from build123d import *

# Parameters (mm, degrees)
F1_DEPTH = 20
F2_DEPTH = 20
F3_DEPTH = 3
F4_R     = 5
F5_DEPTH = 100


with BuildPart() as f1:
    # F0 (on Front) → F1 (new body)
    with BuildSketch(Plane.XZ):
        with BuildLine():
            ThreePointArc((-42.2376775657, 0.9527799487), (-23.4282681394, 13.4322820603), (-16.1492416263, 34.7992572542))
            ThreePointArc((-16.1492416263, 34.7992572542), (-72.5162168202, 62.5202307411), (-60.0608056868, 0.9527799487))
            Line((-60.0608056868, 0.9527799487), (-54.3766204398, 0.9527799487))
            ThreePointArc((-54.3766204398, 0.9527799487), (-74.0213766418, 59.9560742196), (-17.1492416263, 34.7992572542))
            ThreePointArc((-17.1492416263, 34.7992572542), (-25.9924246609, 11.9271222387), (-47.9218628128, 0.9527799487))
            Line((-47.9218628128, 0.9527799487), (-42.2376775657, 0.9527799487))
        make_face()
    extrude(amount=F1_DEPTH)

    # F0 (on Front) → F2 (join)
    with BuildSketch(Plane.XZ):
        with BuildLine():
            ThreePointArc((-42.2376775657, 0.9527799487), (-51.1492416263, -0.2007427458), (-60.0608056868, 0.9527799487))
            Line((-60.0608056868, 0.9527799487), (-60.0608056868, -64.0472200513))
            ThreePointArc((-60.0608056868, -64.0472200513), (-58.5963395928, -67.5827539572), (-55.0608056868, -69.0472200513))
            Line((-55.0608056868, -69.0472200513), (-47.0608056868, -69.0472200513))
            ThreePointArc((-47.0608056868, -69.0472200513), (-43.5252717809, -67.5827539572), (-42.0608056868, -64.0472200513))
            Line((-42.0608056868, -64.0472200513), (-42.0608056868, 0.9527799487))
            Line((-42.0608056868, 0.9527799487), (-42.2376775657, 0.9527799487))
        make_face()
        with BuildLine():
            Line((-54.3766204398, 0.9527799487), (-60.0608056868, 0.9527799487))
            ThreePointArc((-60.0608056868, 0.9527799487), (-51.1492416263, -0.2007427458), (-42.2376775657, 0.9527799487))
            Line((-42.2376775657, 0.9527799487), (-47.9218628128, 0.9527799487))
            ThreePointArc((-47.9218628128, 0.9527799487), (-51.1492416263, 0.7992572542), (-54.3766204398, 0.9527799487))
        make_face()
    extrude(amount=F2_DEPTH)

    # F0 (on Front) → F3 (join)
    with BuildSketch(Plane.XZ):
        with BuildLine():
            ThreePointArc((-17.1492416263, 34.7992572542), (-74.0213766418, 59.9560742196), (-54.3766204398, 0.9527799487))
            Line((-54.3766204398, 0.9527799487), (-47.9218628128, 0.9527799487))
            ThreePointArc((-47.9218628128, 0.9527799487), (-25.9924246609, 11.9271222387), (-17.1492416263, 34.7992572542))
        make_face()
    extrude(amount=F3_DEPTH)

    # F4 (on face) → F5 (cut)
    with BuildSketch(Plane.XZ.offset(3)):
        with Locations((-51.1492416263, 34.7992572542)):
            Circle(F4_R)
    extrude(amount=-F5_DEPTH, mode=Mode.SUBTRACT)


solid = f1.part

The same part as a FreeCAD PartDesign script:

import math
import FreeCAD as App
import Part
import Sketcher

V = App.Vector
Q = App.Units.Quantity

doc = App.newDocument("Part")
body = doc.addObject("PartDesign::Body", "Body")

# Sketch on XZ plane
sketch1 = body.newObject("Sketcher::SketchObject", "Sketch")
sketch1.AttachmentSupport = (doc.getObject("XZ_Plane"), [""])
sketch1.MapMode = "FlatFace"
sketch1.addGeometry([
    Part.ArcOfCircle(Part.Circle(V(-51, 35, 0), V(0, 0, 1), 35), math.radians(-75), math.radians(255)),  # 0
    Part.LineSegment(V(-60, 1, 0), V(-54, 1, 0)),  # 1
    Part.ArcOfCircle(Part.Circle(V(-51, 35, 0), V(0, 0, 1), 34), math.radians(0), math.radians(265)),  # 2
    Part.ArcOfCircle(Part.Circle(V(-51, 35, 0), V(0, 0, 1), 34), math.radians(-85), math.radians(0)),  # 3
    Part.LineSegment(V(-48, 1, 0), V(-42, 1, 0)),  # 4
], False)
sketch1.addConstraint([
    Sketcher.Constraint("Coincident", 0, 2, 1, 1),
    Sketcher.Constraint("Coincident", 1, 2, 2, 2),
    Sketcher.Constraint("Tangent", 2, 1, 3, 2),
    Sketcher.Constraint("Coincident", 3, 1, 4, 1),
    Sketcher.Constraint("Coincident", 4, 2, 0, 1),
    Sketcher.Constraint("Horizontal", 1),
    Sketcher.Constraint("Horizontal", 4),
    Sketcher.Constraint("Coincident", 2, 3, 0, 3),
    Sketcher.Constraint("Equal", 2, 3),
    Sketcher.Constraint("Horizontal", 3, 3, 2, 1),
    Sketcher.Constraint("Horizontal", 1, 2, 3, 1),
    Sketcher.Constraint("Radius", 0, Q("35 mm")),
    Sketcher.Constraint("Radius", 2, Q("34 mm")),
    Sketcher.Constraint("DistanceX", 1, 1, 1, 2, Q("5.684185 mm")),
    Sketcher.Constraint("DistanceX", 0, 3, -1, 1, Q("51.149242 mm")),
    Sketcher.Constraint("DistanceY", -1, 1, 0, 2, Q("0.95278 mm")),
])
pad1 = body.newObject("PartDesign::Pad", "Pad")
pad1.Profile = sketch1
pad1.Length = 20

# Sketch on XZ plane
sketch2 = body.newObject("Sketcher::SketchObject", "Sketch001")
sketch2.AttachmentSupport = (doc.getObject("XZ_Plane"), [""])
sketch2.MapMode = "FlatFace"
sketch2.addGeometry([
    Part.LineSegment(V(-60, 1, 0), V(-60, -64, 0)),  # 0
    Part.ArcOfCircle(Part.Circle(V(-55, -64, 0), V(0, 0, 1), 5), math.radians(180), math.radians(270)),  # 1
    Part.LineSegment(V(-55, -69, 0), V(-47, -69, 0)),  # 2
    Part.ArcOfCircle(Part.Circle(V(-47, -64, 0), V(0, 0, 1), 5), math.radians(-90), math.radians(0)),  # 3
    Part.LineSegment(V(-42, -64, 0), V(-42, 1, 0)),  # 4
    Part.LineSegment(V(-42, 1, 0), V(-48, 1, 0)),  # 5
    Part.ArcOfCircle(Part.Circle(V(-51, 35, 0), V(0, 0, 1), 34), math.radians(-95.45), math.radians(-84.55)),  # 6
    Part.LineSegment(V(-54, 1, 0), V(-60, 1, 0)),  # 7
], False)
sketch2.addConstraint([
    Sketcher.Constraint("Tangent", 0, 2, 1, 1),
    Sketcher.Constraint("Tangent", 1, 2, 2, 1),
    Sketcher.Constraint("Tangent", 2, 2, 3, 1),
    Sketcher.Constraint("Tangent", 3, 2, 4, 1),
    Sketcher.Constraint("Coincident", 4, 2, 5, 1),
    Sketcher.Constraint("Coincident", 5, 2, 6, 2),
    Sketcher.Constraint("Coincident", 6, 1, 7, 1),
    Sketcher.Constraint("Coincident", 7, 2, 0, 1),
    Sketcher.Constraint("Vertical", 0),
    Sketcher.Constraint("Horizontal", 2),
    Sketcher.Constraint("Vertical", 4),
    Sketcher.Constraint("Horizontal", 5),
    Sketcher.Constraint("Horizontal", 7),
    Sketcher.Constraint("Equal", 1, 3),
    Sketcher.Constraint("Horizontal", 5, 2, 6, 1),
    Sketcher.Constraint("Radius", 1, Q("5 mm")),
    Sketcher.Constraint("Radius", 6, Q("34 mm")),
    Sketcher.Constraint("DistanceX", 2, 1, 2, 2, Q("8 mm")),
    Sketcher.Constraint("DistanceY", 0, 2, 0, 1, Q("65 mm")),
    Sketcher.Constraint("DistanceX", 5, 2, 5, 1, Q("5.861057 mm")),
    Sketcher.Constraint("DistanceX", 7, 2, 7, 1, Q("5.684185 mm")),
    Sketcher.Constraint("DistanceY", 1, 3, -1, 1, Q("64.04722 mm")),
    Sketcher.Constraint("DistanceX", 6, 3, -1, 1, Q("51.149242 mm")),
])
pad2 = body.newObject("PartDesign::Pad", "Pad001")
pad2.Profile = sketch2
pad2.Length = 20

# Sketch on XZ plane
sketch3 = body.newObject("Sketcher::SketchObject", "Sketch002")
sketch3.AttachmentSupport = (doc.getObject("XZ_Plane"), [""])
sketch3.MapMode = "FlatFace"
sketch3.addGeometry([
    Part.ArcOfCircle(Part.Circle(V(-51, 35, 0), V(0, 0, 1), 34), math.radians(0), math.radians(265)),
    Part.LineSegment(V(-54, 1, 0), V(-48, 1, 0)),
    Part.ArcOfCircle(Part.Circle(V(-51, 35, 0), V(0, 0, 1), 34), math.radians(-85), math.radians(0)),
], False)
sketch3.addConstraint([
    Sketcher.Constraint("Coincident", 0, 2, 1, 1),
    Sketcher.Constraint("Coincident", 1, 2, 2, 1),
    Sketcher.Constraint("Tangent", 2, 2, 0, 1),
    Sketcher.Constraint("Horizontal", 1),
    Sketcher.Constraint("Equal", 0, 2),
    Sketcher.Constraint("Horizontal", 0, 3, 2, 2),
    Sketcher.Constraint("Radius", 0, Q("34 mm")),
    Sketcher.Constraint("DistanceX", 1, 1, 1, 2, Q("6.454758 mm")),
    Sketcher.Constraint("DistanceX", 0, 3, -1, 1, Q("51.149242 mm")),
    Sketcher.Constraint("DistanceY", -1, 1, 0, 2, Q("0.95278 mm")),
])
pad3 = body.newObject("PartDesign::Pad", "Pad002")
pad3.Profile = sketch3
pad3.Length = 3

# Sketch on XZ plane
sketch4 = body.newObject("Sketcher::SketchObject", "Sketch003")
sketch4.AttachmentSupport = (doc.getObject("XZ_Plane"), [""])
sketch4.MapMode = "FlatFace"
sketch4.AttachmentOffset = App.Placement(V(0, 0, 3), App.Rotation())
sketch4.addGeometry(Part.Circle(V(-51, 35, 0), V(0, 0, 1), 5), False)
sketch4.addConstraint([
    Sketcher.Constraint("Diameter", 0, Q("10 mm")),
    Sketcher.Constraint("DistanceX", 0, 3, -1, 1, Q("51.149242 mm")),
    Sketcher.Constraint("DistanceY", -1, 1, 0, 3, Q("34.799257 mm")),
])
pocket1 = body.newObject("PartDesign::Pocket", "Pocket")
pocket1.Profile = sketch4
pocket1.Length = 100

doc.recompute()
